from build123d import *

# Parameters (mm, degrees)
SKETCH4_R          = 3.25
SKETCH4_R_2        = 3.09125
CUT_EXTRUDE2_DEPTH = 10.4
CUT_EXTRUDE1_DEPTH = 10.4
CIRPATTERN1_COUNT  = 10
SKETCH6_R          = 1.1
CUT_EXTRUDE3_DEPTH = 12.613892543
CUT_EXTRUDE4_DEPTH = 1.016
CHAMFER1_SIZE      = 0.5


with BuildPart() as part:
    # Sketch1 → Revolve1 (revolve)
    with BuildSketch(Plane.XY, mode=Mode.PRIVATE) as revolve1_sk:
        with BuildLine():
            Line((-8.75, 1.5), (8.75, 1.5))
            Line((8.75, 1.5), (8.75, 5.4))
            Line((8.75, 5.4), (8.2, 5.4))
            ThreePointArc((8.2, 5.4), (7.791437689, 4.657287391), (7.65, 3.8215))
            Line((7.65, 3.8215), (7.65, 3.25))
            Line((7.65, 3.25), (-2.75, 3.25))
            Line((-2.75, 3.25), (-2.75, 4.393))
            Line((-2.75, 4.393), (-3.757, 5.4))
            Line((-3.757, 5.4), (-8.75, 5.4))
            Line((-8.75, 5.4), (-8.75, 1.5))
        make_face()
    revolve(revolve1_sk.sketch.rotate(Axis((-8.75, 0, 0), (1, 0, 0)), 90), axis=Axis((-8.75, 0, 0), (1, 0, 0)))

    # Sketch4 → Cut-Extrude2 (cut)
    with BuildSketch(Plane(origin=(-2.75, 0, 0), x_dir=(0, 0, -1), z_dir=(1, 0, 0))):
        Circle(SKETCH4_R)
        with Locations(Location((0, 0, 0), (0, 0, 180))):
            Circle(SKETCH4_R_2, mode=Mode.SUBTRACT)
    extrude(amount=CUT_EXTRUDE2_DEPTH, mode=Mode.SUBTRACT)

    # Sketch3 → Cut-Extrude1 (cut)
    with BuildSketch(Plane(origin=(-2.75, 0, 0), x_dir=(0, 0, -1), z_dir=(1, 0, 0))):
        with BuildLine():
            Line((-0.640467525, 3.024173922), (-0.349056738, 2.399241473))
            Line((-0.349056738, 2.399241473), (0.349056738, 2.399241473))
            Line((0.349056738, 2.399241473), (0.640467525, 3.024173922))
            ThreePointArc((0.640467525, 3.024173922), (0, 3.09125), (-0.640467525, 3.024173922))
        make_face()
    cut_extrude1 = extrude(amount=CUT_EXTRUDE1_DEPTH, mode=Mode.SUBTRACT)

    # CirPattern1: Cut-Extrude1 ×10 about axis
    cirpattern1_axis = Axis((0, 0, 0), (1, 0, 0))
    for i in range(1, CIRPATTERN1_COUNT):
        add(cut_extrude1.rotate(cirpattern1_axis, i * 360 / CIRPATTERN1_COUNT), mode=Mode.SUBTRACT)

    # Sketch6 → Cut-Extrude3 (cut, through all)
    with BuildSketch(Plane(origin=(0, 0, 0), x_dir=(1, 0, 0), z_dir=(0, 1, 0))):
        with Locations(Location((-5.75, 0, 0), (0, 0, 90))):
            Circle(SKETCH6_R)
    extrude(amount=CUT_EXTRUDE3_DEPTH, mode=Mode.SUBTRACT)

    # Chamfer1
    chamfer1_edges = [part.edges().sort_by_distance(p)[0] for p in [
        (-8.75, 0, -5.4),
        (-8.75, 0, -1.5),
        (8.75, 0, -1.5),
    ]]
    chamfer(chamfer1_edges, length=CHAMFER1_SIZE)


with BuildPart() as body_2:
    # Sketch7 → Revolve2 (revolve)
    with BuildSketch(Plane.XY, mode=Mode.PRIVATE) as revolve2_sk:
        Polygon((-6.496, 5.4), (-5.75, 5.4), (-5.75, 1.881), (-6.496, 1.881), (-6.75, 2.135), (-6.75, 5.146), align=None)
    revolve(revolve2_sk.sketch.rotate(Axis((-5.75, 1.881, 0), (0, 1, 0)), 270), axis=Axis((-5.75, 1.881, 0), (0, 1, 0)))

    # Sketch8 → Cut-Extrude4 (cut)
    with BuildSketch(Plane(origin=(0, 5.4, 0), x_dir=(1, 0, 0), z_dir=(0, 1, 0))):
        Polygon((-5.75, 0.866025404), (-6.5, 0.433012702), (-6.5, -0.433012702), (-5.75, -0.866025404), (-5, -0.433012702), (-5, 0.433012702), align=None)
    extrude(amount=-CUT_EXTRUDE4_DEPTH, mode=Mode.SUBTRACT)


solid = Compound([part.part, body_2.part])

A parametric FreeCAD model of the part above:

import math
import FreeCAD as App
import Part
import Sketcher
Q = App.Units.Quantity


def edges_at(feature, points):
    """Names of the edges that pass closest to the given points."""
    edges = feature.Shape.Edges
    near = lambda p: min(range(len(edges)), key=lambda i: edges[i].distToShape(Part.Vertex(*p))[0])
    return sorted({f"Edge{near(p) + 1}" for p in points})


def add_polygon(sketch, points):
    """Adds a closed chain of lines whose ends are joined by coincident constraints."""
    first, n = sketch.GeometryCount, len(points)
    for a, b in zip(points, points[1:] + points[:1]):
        sketch.addGeometry(Part.LineSegment(App.Vector(*a, 0), App.Vector(*b, 0)), False)
    for i in range(n):
        sketch.addConstraint(Sketcher.Constraint("Coincident", first + i, 2, first + (i + 1) % n, 1))

doc = App.newDocument("Part")
params = doc.addObject("Spreadsheet::Sheet", "Params")
for row, (alias, value) in enumerate([
    ("sketch1_width", "17.5 mm"),
    ("sketch1_width2", "10.4 mm"),
    ("sketch1_height", "3.9 mm"),
    ("sketch1_width3", "0.55 mm"),
    ("revolution_angle", "360 deg"),
    ("sketch2_diameter", "6.5 mm"),
    ("pocket1_length", "10.4 mm"),
    ("pocket2_length", "10.4 mm"),
    ("sketch4_diameter", "2.2 mm"),
    ("chamfer_size", "0.5 mm"),
    ("revolution2_angle", "360 deg"),
    ("pocket4_length", "1.016 mm"),
], start=1):
    params.set(f"A{row}", alias)
    params.set(f"B{row}", "=" + value)
    params.setAlias(f"B{row}", alias)

body = doc.addObject("PartDesign::Body", "Body")

# Sketch on XY plane
sketch1 = body.newObject("Sketcher::SketchObject", "Sketch")
sketch1.AttachmentSupport = (doc.getObject("XY_Plane"), [""])
sketch1.MapMode = "FlatFace"
sketch1.addGeometry([
    Part.LineSegment(App.Vector(-8.8, 1.5, 0), App.Vector(8.8, 1.5, 0)),  # 0
    Part.LineSegment(App.Vector(8.8, 1.5, 0), App.Vector(8.8, 5.4, 0)),  # 1
    Part.LineSegment(App.Vector(8.8, 5.4, 0), App.Vector(8.2, 5.4, 0)),  # 2
    Part.ArcOfCircle(Part.Circle(App.Vector(10.2, 3.8, 0), App.Vector(0, 0, 1), 2.5), math.radians(142), math.radians(180)),  # 3
    Part.LineSegment(App.Vector(7.7, 3.8, 0), App.Vector(7.7, 3.2, 0)),  # 4
    Part.LineSegment(App.Vector(7.7, 3.2, 0), App.Vector(-2.8, 3.2, 0)),  # 5
    Part.LineSegment(App.Vector(-2.8, 3.2, 0), App.Vector(-2.8, 4.4, 0)),  # 6
    Part.LineSegment(App.Vector(-2.8, 4.4, 0), App.Vector(-3.8, 5.4, 0)),  # 7
    Part.LineSegment(App.Vector(-3.8, 5.4, 0), App.Vector(-8.8, 5.4, 0)),  # 8
    Part.LineSegment(App.Vector(-8.8, 5.4, 0), App.Vector(-8.8, 1.5, 0)),  # 9
], False)
sketch1.addConstraint([
    Sketcher.Constraint("Coincident", 0, 2, 1, 1),
    Sketcher.Constraint("Coincident", 1, 2, 2, 1),
    Sketcher.Constraint("Coincident", 2, 2, 3, 1),
    Sketcher.Constraint("Tangent", 3, 2, 4, 1),
    Sketcher.Constraint("Coincident", 4, 2, 5, 1),
    Sketcher.Constraint("Coincident", 5, 2, 6, 1),
    Sketcher.Constraint("Coincident", 6, 2, 7, 1),
    Sketcher.Constraint("Coincident", 7, 2, 8, 1),
    Sketcher.Constraint("Coincident", 8, 2, 9, 1),
    Sketcher.Constraint("Coincident", 9, 2, 0, 1),
    Sketcher.Constraint("Horizontal", 0),
    Sketcher.Constraint("Vertical", 1),
    Sketcher.Constraint("Horizontal", 2),
    Sketcher.Constraint("Vertical", 4),
    Sketcher.Constraint("Horizontal", 5),
    Sketcher.Constraint("Vertical", 6),
    Sketcher.Constraint("Horizontal", 8),
    Sketcher.Constraint("Vertical", 9),
    Sketcher.Constraint("Symmetric", 1, 2, 8, 2, -2),
    Sketcher.Constraint("Angle", 7, Q("135 deg")),
    Sketcher.Constraint("DistanceX", 0, 1, 0, 2, Q("17.5 mm")),
    Sketcher.Constraint("DistanceX", 5, 2, 5, 1, Q("10.4 mm")),
    Sketcher.Constraint("DistanceY", 1, 1, 1, 2, Q("3.9 mm")),
    Sketcher.Constraint("DistanceX", 8, 2, 6, 2, Q("6 mm")),
    Sketcher.Constraint("DistanceX", 2, 2, 2, 1, Q("0.55 mm")),
    Sketcher.Constraint("DistanceY", -1, 1, 0, 2, Q("1.5 mm")),
    Sketcher.Constraint("DistanceX", 8, 2, 8, 1, Q("4.993 mm")),
    Sketcher.Constraint("DistanceY", 6, 1, 6, 2, Q("1.143 mm")),
    Sketcher.Constraint("DistanceY", 4, 2, 4, 1, Q("0.5715 mm")),
])
sketch1.setExpression("Constraints[20]", "Params.sketch1_width")
sketch1.setExpression("Constraints[21]", "Params.sketch1_width2")
sketch1.setExpression("Constraints[22]", "Params.sketch1_height")
sketch1.setExpression("Constraints[24]", "Params.sketch1_width3")
revolution = body.newObject("PartDesign::Revolution", "Revolution")
revolution.Profile = sketch1
revolution.ReferenceAxis = (sketch1, ["H_Axis"])
revolution.setExpression("Angle", "Params.revolution_angle")

# Sketch on YZ plane
sketch2 = body.newObject("Sketcher::SketchObject", "Sketch001")
sketch2.AttachmentSupport = (doc.getObject("YZ_Plane"), [""])
sketch2.MapMode = "FlatFace"
sketch2.AttachmentOffset = App.Placement(App.Vector(0, 0, -2.75), App.Rotation())
sketch2.addGeometry([
    Part.Circle(App.Vector(0, 0, 0), App.Vector(0, 0, 1), 3.2),
    Part.Circle(App.Vector(0, 0, 0), App.Vector(0, 0, 1), 3.1),
], False)
sketch2.addConstraint([
    Sketcher.Constraint("Coincident", 0, 3, -1, 1),
    Sketcher.Constraint("Coincident", 1, 3, -1, 1),
    Sketcher.Constraint("Diameter", 0, Q("6.5 mm")),
    Sketcher.Constraint("Diameter", 1, Q("6.1825 mm")),
])
sketch2.setExpression("Constraints[2]", "Params.sketch2_diameter")
pocket1 = body.newObject("PartDesign::Pocket", "Pocket")
pocket1.Profile = sketch2
pocket1.setExpression("Length", "Params.pocket1_length")
pocket1.Reversed = True

# Sketch on YZ plane
sketch3 = body.newObject("Sketcher::SketchObject", "Sketch002")
sketch3.AttachmentSupport = (doc.getObject("YZ_Plane"), [""])
sketch3.MapMode = "FlatFace"
sketch3.AttachmentOffset = App.Placement(App.Vector(0, 0, -2.75), App.Rotation())
sketch3.addGeometry([
    Part.LineSegment(App.Vector(3, 0.6, 0), App.Vector(2.4, 0.3, 0)),
    Part.LineSegment(App.Vector(2.4, 0.3, 0), App.Vector(2.4, -0.3, 0)),
    Part.LineSegment(App.Vector(2.4, -0.3, 0), App.Vector(3, -0.6, 0)),
    Part.ArcOfCircle(Part.Circle(App.Vector(0, 0, 0), App.Vector(0, 0, 1), 3.1), math.radians(-12), math.radians(12)),
], False)
sketch3.addConstraint([
    Sketcher.Constraint("Coincident", 0, 2, 1, 1),
    Sketcher.Constraint("Coincident", 1, 2, 2, 1),
    Sketcher.Constraint("Coincident", 2, 2, 3, 1),
    Sketcher.Constraint("Coincident", 3, 2, 0, 1),
    Sketcher.Constraint("Vertical", 1),
    Sketcher.Constraint("Coincident", 3, 3, -1, 1),
    Sketcher.Constraint("Vertical", 2, 2, 3, 2),
    Sketcher.Constraint("Equal", 0, 2),
    Sketcher.Constraint("Angle", 0, Q("-155 deg")),
    Sketcher.Constraint("Radius", 3, Q("3.09125 mm")),
    Sketcher.Constraint("DistanceY", 1, 2, 1, 1, Q("0.698113 mm")),
    Sketcher.Constraint("DistanceX", -1, 1, 0, 2, Q("2.399241 mm")),
])
pocket2 = body.newObject("PartDesign::Pocket", "Pocket001")
pocket2.Profile = sketch3
pocket2.setExpression("Length", "Params.pocket2_length")
pocket2.Reversed = True
doc.recompute()

polarpattern = body.newObject("PartDesign::PolarPattern", "PolarPattern")
polarpattern.Originals = [pocket2]
polarpattern.Axis = (doc.getObject("X_Axis"), [""])
polarpattern.Angle = 360
polarpattern.Occurrences = 10
body.Tip = polarpattern

# Sketch on XZ plane
sketch4 = body.newObject("Sketcher::SketchObject", "Sketch003")
sketch4.AttachmentSupport = (doc.getObject("XZ_Plane"), [""])
sketch4.MapMode = "FlatFace"
sketch4.addGeometry(Part.Circle(App.Vector(-5.8, 0, 0), App.Vector(0, 0, 1), 1.1), False)
sketch4.addConstraint([
    Sketcher.Constraint("PointOnObject", 0, 3, -1),
    Sketcher.Constraint("Diameter", 0, Q("2.2 mm")),
    Sketcher.Constraint("DistanceX", 0, 3, -1, 1, Q("5.75 mm")),
])
sketch4.setExpression("Constraints[1]", "Params.sketch4_diameter")
pocket3 = body.newObject("PartDesign::Pocket", "Pocket002")
pocket3.Profile = sketch4
pocket3.Type = "ThroughAll"
doc.recompute()

chamfer = body.newObject("PartDesign::Chamfer", "Chamfer")
chamfer.Base = (pocket3, edges_at(pocket3, [(-8.75, 0, -5.4), (-8.75, 0, -1.5), (8.75, 0, -1.5)]))
chamfer.setExpression("Size", "Params.chamfer_size")
body2 = doc.addObject("PartDesign::Body", "Body001")

# Sketch on XY plane
sketch5 = body2.newObject("Sketcher::SketchObject", "Sketch004")
sketch5.AttachmentSupport = (doc.getObject("XY_Plane001"), [""])
sketch5.MapMode = "FlatFace"
add_polygon(sketch5, [(-5.75, 5.4), (-6.5, 5.4), (-6.75, 5.15), (-6.75, 2.13), (-6.5, 1.88), (-5.75, 1.88)])  # lines 0-5
sketch5.addGeometry(Part.LineSegment(App.Vector(-5.75, 1.88, 0), App.Vector(-5.75, 5.4, 0)), True)  # axis
sketch5.addConstraint([
    Sketcher.Constraint("Horizontal", 0),
    Sketcher.Constraint("Vertical", 2),
    Sketcher.Constraint("Horizontal", 4),
    Sketcher.Constraint("Vertical", 5),
    Sketcher.Constraint("Vertical", 6),
    Sketcher.Constraint("Coincident", 6, 1, 4, 2),
    Sketcher.Constraint("Perpendicular", 1, 3),
    Sketcher.Constraint("Horizontal", 0, 2, 6, 2),
    Sketcher.Constraint("Vertical", 0, 2, 3, 2),
    Sketcher.Constraint("Equal", 1, 3),
    Sketcher.Constraint("DistanceX", 2, 2, 4, 2, Q("1 mm")),
    Sketcher.Constraint("DistanceY", -1, 1, 0, 2, Q("5.4 mm")),
    Sketcher.Constraint("DistanceX", 0, 2, 0, 1, Q("0.746 mm")),
    Sketcher.Constraint("DistanceY", 2, 2, 2, 1, Q("3.011 mm")),
    Sketcher.Constraint("DistanceX", 1, 2, -1, 1, Q("6.75 mm")),
])
revolution2 = body2.newObject("PartDesign::Revolution", "Revolution001")
revolution2.Profile = sketch5
revolution2.ReferenceAxis = (sketch5, ["Axis0"])
revolution2.setExpression("Angle", "Params.revolution2_angle")

# Sketch on XZ plane
sketch6 = body2.newObject("Sketcher::SketchObject", "Sketch005")
sketch6.AttachmentSupport = (doc.getObject("XZ_Plane001"), [""])
sketch6.MapMode = "FlatFace"
sketch6.AttachmentOffset = App.Placement(App.Vector(0, 0, -5.4), App.Rotation())
add_polygon(sketch6, [(-5.8, -0.9), (-6.5, -0.4), (-6.5, 0.4), (-5.8, 0.9), (-5, 0.4), (-5, -0.4)])  # lines 0-5
sketch6.addConstraint([
    Sketcher.Constraint("Vertical", 1),
    Sketcher.Constraint("Vertical", 4),
    Sketcher.Constraint("Symmetric", 2, 2, 5, 2, -1),
    Sketcher.Constraint("Parallel", 0, 3),
    Sketcher.Constraint("Parallel", 2, 5),
    Sketcher.Constraint("Horizontal", 1, 2, 3, 2),
    Sketcher.Constraint("Horizontal", 0, 2, 4, 2),
    Sketcher.Constraint("Angle", 0, Q("150 deg")),
    Sketcher.Constraint("DistanceX", 3, 2, -1, 1, Q("5 mm")),
    Sketcher.Constraint("DistanceX", 0, 2, -1, 1, Q("6.5 mm")),
    Sketcher.Constraint("DistanceY", 1, 1, 1, 2, Q("0.866025 mm")),
])
pocket4 = body2.newObject("PartDesign::Pocket", "Pocket003")
pocket4.Profile = sketch6
pocket4.setExpression("Length", "Params.pocket4_length")
pocket4.Reversed = True

doc.recompute()
